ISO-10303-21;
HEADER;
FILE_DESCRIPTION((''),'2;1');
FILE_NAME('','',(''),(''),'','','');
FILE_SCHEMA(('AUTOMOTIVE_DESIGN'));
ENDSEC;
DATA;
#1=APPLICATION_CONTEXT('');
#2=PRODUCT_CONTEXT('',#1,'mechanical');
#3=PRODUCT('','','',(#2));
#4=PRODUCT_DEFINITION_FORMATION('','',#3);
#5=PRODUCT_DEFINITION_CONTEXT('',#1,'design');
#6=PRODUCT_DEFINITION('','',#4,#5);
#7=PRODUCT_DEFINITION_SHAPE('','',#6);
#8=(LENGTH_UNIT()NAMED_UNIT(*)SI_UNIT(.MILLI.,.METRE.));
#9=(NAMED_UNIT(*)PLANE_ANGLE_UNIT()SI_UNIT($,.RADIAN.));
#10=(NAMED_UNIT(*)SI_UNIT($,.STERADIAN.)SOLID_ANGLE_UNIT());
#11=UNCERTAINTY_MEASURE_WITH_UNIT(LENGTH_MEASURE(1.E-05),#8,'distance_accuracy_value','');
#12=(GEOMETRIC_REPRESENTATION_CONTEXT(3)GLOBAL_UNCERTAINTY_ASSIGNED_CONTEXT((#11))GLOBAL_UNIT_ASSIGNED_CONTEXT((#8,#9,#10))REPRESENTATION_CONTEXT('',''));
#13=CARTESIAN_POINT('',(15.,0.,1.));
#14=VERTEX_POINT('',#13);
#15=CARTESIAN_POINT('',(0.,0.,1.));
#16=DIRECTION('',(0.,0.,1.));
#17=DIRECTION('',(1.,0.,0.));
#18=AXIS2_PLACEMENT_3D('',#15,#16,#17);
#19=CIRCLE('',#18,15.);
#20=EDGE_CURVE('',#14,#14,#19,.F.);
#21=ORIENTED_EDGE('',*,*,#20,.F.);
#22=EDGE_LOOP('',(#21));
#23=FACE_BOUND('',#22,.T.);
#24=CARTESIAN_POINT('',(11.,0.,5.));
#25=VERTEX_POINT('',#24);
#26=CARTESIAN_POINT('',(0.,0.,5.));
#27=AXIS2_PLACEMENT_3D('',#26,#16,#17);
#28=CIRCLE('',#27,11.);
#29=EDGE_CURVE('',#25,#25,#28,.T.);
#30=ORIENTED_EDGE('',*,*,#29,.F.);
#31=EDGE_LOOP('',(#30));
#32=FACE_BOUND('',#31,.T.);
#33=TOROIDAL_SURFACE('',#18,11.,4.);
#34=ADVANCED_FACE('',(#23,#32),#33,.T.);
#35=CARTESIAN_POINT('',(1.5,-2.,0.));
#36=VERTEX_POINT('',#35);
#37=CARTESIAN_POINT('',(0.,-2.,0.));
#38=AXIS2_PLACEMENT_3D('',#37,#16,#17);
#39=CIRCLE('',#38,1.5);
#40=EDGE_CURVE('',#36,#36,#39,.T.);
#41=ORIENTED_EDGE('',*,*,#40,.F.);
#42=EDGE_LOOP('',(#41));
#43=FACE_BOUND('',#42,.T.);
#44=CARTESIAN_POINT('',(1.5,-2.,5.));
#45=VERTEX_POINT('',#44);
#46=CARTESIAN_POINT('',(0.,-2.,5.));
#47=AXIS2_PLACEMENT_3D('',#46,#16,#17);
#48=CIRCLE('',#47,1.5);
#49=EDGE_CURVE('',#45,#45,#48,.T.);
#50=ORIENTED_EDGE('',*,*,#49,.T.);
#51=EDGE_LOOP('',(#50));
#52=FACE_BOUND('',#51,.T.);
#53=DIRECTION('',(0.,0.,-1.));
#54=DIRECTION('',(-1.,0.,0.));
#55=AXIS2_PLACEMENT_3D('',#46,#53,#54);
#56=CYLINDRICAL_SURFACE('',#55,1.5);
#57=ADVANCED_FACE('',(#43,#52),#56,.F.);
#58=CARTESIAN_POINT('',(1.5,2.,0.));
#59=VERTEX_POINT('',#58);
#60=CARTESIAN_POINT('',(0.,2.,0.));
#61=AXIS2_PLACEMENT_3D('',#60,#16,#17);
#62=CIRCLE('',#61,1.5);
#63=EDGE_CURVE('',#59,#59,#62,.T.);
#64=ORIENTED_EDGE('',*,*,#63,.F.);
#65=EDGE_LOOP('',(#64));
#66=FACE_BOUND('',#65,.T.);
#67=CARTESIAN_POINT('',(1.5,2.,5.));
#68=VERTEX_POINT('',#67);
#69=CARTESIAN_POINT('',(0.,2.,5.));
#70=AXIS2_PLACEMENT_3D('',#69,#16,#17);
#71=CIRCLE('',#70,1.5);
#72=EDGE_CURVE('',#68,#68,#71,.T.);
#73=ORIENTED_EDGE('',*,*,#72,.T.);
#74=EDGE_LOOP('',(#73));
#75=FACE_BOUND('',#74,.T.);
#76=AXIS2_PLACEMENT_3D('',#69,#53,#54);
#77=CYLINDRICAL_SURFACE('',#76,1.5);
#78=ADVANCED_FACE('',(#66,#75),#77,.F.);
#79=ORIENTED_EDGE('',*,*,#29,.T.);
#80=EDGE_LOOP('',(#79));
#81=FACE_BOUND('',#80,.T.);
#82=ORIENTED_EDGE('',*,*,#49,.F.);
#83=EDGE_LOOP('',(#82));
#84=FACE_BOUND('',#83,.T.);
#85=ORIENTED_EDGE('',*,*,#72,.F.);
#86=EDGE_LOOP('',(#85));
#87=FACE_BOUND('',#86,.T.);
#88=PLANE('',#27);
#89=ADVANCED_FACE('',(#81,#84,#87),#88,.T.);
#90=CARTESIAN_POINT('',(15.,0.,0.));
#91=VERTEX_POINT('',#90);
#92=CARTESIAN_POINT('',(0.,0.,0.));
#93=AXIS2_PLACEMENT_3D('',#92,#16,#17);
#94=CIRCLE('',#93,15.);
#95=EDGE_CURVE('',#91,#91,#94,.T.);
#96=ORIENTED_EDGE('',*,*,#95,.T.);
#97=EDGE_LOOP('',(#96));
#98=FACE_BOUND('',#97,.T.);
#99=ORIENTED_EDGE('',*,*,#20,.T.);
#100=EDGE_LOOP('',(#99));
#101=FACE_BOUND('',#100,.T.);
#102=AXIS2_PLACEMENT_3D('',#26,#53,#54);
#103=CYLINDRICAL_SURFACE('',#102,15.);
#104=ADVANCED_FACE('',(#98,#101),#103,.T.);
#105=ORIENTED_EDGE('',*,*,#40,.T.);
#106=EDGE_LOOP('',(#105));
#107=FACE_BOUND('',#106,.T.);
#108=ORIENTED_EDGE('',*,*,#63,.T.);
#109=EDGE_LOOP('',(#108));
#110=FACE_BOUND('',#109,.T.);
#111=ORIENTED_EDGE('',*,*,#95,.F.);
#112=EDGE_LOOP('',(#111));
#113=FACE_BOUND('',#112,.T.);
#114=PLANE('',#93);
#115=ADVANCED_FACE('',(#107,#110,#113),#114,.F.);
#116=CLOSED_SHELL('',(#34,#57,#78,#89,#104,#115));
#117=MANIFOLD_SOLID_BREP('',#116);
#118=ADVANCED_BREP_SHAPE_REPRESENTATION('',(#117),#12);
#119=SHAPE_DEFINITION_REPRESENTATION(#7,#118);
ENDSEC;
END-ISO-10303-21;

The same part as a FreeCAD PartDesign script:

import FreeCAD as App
import Part
import Sketcher

V = App.Vector


def edges_at(feature, points):
    """Names of the edges that pass closest to the given points."""
    edges = feature.Shape.Edges
    near = lambda p: min(range(len(edges)), key=lambda i: edges[i].distToShape(Part.Vertex(*p))[0])
    return sorted({f"Edge{near(p) + 1}" for p in points})

doc = App.newDocument("Part")
body = doc.addObject("PartDesign::Body", "Body")

# Sketch on XY plane
sketch1 = doc.addObject("Sketcher::SketchObject", "Sketch")
body.addObject(sketch1)
sketch1.AttachmentSupport = (doc.XY_Plane, [""])
sketch1.MapMode = "FlatFace"
sketch1.addGeometry([
    Part.Circle(V(0, 0, 0), V(0, 0, 1), 15),
    Part.Circle(V(0, -2, 0), V(0, 0, 1), 1.5),
    Part.Circle(V(0, 2, 0), V(0, 0, 1), 1.5),
], False)
sketch1.addConstraint([
    Sketcher.Constraint("Coincident", 0, 3, -1, 1),
    Sketcher.Constraint("Equal", 1, 2),
    Sketcher.Constraint("Symmetric", 1, 3, 2, 3, -1, 1),
    Sketcher.Constraint("PointOnObject", 1, 3, -2),
    Sketcher.Constraint("Diameter", 0, 30.0),
    Sketcher.Constraint("Diameter", 1, 3.0),
    Sketcher.Constraint("DistanceY", 1, 3, -1, 1, 2.0),
])
pad1 = doc.addObject("PartDesign::Pad", "Pad")
body.addObject(pad1)
pad1.Profile = sketch1
pad1.Length = 5
doc.recompute()

fillet = doc.addObject("PartDesign::Fillet", "Fillet")
body.addObject(fillet)
fillet.Base = (pad1, edges_at(pad1, [(-15, 0, 5)]))
fillet.Radius = 4

doc.recompute()
